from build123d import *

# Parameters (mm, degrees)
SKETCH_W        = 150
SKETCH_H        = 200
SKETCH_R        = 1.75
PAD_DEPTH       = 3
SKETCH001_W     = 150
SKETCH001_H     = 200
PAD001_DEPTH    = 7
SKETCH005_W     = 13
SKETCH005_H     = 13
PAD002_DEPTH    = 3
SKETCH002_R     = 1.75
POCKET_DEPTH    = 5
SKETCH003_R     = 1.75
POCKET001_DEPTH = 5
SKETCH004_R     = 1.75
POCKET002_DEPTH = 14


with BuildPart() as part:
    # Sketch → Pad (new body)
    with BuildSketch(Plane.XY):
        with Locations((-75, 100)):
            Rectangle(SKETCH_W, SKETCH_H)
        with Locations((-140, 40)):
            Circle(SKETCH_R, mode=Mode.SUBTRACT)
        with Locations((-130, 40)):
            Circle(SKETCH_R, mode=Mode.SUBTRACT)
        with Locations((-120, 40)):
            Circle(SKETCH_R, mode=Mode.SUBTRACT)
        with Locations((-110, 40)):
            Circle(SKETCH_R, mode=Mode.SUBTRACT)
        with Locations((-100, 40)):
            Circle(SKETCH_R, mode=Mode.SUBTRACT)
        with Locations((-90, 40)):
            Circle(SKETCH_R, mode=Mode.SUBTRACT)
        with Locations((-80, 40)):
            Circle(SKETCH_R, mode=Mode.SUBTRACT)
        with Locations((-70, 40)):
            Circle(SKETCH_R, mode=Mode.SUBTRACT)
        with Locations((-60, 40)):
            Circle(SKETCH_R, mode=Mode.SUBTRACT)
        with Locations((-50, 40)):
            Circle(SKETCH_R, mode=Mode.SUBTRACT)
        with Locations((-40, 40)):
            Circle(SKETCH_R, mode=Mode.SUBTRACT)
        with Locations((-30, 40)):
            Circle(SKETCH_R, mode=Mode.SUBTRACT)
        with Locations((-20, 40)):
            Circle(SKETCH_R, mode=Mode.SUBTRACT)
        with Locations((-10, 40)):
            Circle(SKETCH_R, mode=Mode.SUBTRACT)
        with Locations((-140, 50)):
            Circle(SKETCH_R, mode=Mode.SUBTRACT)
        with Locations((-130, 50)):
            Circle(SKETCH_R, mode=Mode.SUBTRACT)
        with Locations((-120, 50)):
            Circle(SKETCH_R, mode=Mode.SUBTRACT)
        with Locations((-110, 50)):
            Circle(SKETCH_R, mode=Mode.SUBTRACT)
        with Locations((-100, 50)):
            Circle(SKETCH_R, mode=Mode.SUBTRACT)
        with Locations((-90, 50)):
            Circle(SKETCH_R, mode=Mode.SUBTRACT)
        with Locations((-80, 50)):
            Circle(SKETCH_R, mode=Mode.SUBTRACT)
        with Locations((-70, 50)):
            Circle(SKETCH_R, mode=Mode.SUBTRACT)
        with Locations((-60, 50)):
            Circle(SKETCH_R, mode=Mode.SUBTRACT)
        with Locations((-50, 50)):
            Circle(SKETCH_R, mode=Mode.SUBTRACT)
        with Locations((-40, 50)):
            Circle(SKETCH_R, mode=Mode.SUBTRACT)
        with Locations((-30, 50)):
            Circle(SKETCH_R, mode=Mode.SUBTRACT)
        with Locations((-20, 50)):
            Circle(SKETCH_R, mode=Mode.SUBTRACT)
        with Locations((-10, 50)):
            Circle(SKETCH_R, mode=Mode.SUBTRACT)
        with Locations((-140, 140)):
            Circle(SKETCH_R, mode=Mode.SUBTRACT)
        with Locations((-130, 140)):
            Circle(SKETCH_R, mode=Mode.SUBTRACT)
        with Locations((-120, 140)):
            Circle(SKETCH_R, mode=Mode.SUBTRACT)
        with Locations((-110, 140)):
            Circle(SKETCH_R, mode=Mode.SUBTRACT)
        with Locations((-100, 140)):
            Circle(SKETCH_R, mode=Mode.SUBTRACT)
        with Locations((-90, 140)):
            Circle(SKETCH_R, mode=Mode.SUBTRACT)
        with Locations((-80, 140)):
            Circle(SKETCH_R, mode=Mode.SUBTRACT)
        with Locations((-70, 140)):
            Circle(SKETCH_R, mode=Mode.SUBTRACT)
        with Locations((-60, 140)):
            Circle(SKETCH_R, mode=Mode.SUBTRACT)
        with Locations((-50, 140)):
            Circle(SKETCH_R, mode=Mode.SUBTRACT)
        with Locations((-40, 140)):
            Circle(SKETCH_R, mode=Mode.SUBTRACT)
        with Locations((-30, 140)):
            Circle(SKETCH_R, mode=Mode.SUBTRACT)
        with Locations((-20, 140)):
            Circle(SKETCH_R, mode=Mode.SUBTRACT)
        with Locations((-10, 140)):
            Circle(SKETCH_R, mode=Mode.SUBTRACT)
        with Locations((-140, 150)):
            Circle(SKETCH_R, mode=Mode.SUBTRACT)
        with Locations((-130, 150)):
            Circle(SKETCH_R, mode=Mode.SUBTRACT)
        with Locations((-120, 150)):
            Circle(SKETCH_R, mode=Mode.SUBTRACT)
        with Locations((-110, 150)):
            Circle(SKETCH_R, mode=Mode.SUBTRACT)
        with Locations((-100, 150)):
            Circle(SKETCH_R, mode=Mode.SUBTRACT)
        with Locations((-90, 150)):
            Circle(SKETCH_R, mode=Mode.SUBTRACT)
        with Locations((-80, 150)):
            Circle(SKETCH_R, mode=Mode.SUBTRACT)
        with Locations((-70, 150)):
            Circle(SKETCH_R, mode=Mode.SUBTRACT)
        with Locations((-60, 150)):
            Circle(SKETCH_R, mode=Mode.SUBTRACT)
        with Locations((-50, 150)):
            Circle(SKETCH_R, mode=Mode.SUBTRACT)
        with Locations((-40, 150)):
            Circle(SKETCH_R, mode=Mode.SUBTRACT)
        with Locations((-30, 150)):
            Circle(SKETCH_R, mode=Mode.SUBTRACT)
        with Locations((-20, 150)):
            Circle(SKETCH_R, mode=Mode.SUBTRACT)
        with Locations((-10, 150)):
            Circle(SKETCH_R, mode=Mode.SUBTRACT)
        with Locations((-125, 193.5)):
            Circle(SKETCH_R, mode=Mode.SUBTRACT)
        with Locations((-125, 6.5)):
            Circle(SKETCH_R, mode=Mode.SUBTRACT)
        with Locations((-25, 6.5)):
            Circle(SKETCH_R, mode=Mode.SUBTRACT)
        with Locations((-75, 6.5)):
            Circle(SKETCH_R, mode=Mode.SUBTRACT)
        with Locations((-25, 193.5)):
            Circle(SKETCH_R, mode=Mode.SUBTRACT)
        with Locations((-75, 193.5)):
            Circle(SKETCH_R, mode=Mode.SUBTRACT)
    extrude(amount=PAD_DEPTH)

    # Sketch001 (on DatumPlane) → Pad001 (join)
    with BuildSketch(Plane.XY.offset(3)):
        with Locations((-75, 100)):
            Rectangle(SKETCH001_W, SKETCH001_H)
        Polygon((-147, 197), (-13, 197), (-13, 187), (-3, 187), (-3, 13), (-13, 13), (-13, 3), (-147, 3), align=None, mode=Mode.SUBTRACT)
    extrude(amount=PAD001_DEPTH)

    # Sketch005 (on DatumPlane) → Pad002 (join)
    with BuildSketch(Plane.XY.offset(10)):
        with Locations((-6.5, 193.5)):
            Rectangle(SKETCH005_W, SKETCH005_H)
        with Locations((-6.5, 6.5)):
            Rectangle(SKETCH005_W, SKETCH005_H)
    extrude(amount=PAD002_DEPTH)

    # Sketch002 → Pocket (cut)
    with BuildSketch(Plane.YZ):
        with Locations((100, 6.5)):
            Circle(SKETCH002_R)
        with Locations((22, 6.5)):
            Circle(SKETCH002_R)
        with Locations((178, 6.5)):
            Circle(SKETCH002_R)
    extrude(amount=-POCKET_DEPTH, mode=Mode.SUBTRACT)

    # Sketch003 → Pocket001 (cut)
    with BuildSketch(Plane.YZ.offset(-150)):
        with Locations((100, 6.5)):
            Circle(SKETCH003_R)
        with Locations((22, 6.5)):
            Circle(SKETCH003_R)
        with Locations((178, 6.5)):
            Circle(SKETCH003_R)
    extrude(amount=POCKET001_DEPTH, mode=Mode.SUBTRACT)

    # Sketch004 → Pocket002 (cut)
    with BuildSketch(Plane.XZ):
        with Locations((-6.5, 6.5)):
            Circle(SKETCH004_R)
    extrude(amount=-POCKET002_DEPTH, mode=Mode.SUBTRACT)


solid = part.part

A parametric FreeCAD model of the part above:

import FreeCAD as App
import Part
import Sketcher

doc = App.newDocument("Part")
body = doc.addObject("PartDesign::Body", "Body")

sketch1 = body.newObject("Sketcher::SketchObject", "Sketch")
sketch1.AttachmentSupport = (doc.getObject("XY_Plane"), [""])
sketch1.MapMode = "FlatFace"
sketch1.addGeometry(Part.LineSegment(App.Vector(-150, 200, 0), App.Vector(-150, 0, 0)), False)
sketch1.addGeometry(Part.LineSegment(App.Vector(-150, 0, 0), App.Vector(0, 0, 0)), False)
sketch1.addGeometry(Part.LineSegment(App.Vector(0, 0, 0), App.Vector(0, 200, 0)), False)
sketch1.addGeometry(Part.LineSegment(App.Vector(0, 200, 0), App.Vector(-150, 200, 0)), False)
sketch1.addGeometry(Part.Circle(App.Vector(-125, 6.5, 0), App.Vector(0, 0, 1), 1.8), False)
sketch1.addGeometry(Part.Circle(App.Vector(-140, 40, 0), App.Vector(0, 0, 1), 1.8), False)
sketch1.addGeometry(Part.Circle(App.Vector(-130, 40, 0), App.Vector(0, 0, 1), 1.8), False)
sketch1.addGeometry(Part.Circle(App.Vector(-140, 50, 0), App.Vector(0, 0, 1), 1.8), False)
sketch1.addGeometry(Part.Circle(App.Vector(-130, 50, 0), App.Vector(0, 0, 1), 1.8), False)
sketch1.addGeometry(Part.Circle(App.Vector(-120, 40, 0), App.Vector(0, 0, 1), 1.8), False)
sketch1.addGeometry(Part.Circle(App.Vector(-110, 40, 0), App.Vector(0, 0, 1), 1.8), False)
sketch1.addGeometry(Part.Circle(App.Vector(-120, 50, 0), App.Vector(0, 0, 1), 1.8), False)
sketch1.addGeometry(Part.Circle(App.Vector(-110, 50, 0), App.Vector(0, 0, 1), 1.8), False)
sketch1.addGeometry(Part.Circle(App.Vector(-100, 40, 0), App.Vector(0, 0, 1), 1.8), False)
sketch1.addGeometry(Part.Circle(App.Vector(-100, 50, 0), App.Vector(0, 0, 1), 1.8), False)
sketch1.addGeometry(Part.Circle(App.Vector(-90, 40, 0), App.Vector(0, 0, 1), 1.8), False)
sketch1.addGeometry(Part.Circle(App.Vector(-80, 40, 0), App.Vector(0, 0, 1), 1.8), False)
sketch1.addGeometry(Part.Circle(App.Vector(-90, 50, 0), App.Vector(0, 0, 1), 1.8), False)
sketch1.addGeometry(Part.Circle(App.Vector(-80, 50, 0), App.Vector(0, 0, 1), 1.8), False)
sketch1.addGeometry(Part.Circle(App.Vector(-75, 6.5, 0), App.Vector(0, 0, 1), 1.8), False)
sketch1.addGeometry(Part.Circle(App.Vector(-70, 40, 0), App.Vector(0, 0, 1), 1.8), False)
sketch1.addGeometry(Part.Circle(App.Vector(-60, 40, 0), App.Vector(0, 0, 1), 1.8), False)
sketch1.addGeometry(Part.Circle(App.Vector(-70, 50, 0), App.Vector(0, 0, 1), 1.8), False)
sketch1.addGeometry(Part.Circle(App.Vector(-60, 50, 0), App.Vector(0, 0, 1), 1.8), False)
sketch1.addGeometry(Part.Circle(App.Vector(-50, 40, 0), App.Vector(0, 0, 1), 1.8), False)
sketch1.addGeometry(Part.Circle(App.Vector(-50, 50, 0), App.Vector(0, 0, 1), 1.8), False)
sketch1.addGeometry(Part.Circle(App.Vector(-25, 6.5, 0), App.Vector(0, 0, 1), 1.8), False)
sketch1.addGeometry(Part.Circle(App.Vector(-40, 40, 0), App.Vector(0, 0, 1), 1.8), False)
sketch1.addGeometry(Part.Circle(App.Vector(-30, 40, 0), App.Vector(0, 0, 1), 1.8), False)
sketch1.addGeometry(Part.Circle(App.Vector(-40, 50, 0), App.Vector(0, 0, 1), 1.8), False)
sketch1.addGeometry(Part.Circle(App.Vector(-30, 50, 0), App.Vector(0, 0, 1), 1.8), False)
sketch1.addGeometry(Part.Circle(App.Vector(-20, 40, 0), App.Vector(0, 0, 1), 1.8), False)
sketch1.addGeometry(Part.Circle(App.Vector(-10, 40, 0), App.Vector(0, 0, 1), 1.8), False)
sketch1.addGeometry(Part.Circle(App.Vector(-20, 50, 0), App.Vector(0, 0, 1), 1.8), False)
sketch1.addGeometry(Part.Circle(App.Vector(-10, 50, 0), App.Vector(0, 0, 1), 1.8), False)
sketch1.addGeometry(Part.Circle(App.Vector(-140, 140, 0), App.Vector(0, 0, 1), 1.8), False)
sketch1.addGeometry(Part.Circle(App.Vector(-130, 140, 0), App.Vector(0, 0, 1), 1.8), False)
sketch1.addGeometry(Part.Circle(App.Vector(-120, 140, 0), App.Vector(0, 0, 1), 1.8), False)
sketch1.addGeometry(Part.Circle(App.Vector(-110, 140, 0), App.Vector(0, 0, 1), 1.8), False)
sketch1.addGeometry(Part.Circle(App.Vector(-100, 140, 0), App.Vector(0, 0, 1), 1.8), False)
sketch1.addGeometry(Part.Circle(App.Vector(-90, 140, 0), App.Vector(0, 0, 1), 1.8), False)
sketch1.addGeometry(Part.Circle(App.Vector(-80, 140, 0), App.Vector(0, 0, 1), 1.8), False)
sketch1.addGeometry(Part.Circle(App.Vector(-140, 150, 0), App.Vector(0, 0, 1), 1.8), False)
sketch1.addGeometry(Part.Circle(App.Vector(-130, 150, 0), App.Vector(0, 0, 1), 1.8), False)
sketch1.addGeometry(Part.Circle(App.Vector(-120, 150, 0), App.Vector(0, 0, 1), 1.8), False)
sketch1.addGeometry(Part.Circle(App.Vector(-110, 150, 0), App.Vector(0, 0, 1), 1.8), False)
sketch1.addGeometry(Part.Circle(App.Vector(-125, 193.5, 0), App.Vector(0, 0, 1), 1.8), False)
sketch1.addGeometry(Part.Circle(App.Vector(-100, 150, 0), App.Vector(0, 0, 1), 1.8), False)
sketch1.addGeometry(Part.Circle(App.Vector(-90, 150, 0), App.Vector(0, 0, 1), 1.8), False)
sketch1.addGeometry(Part.Circle(App.Vector(-80, 150, 0), App.Vector(0, 0, 1), 1.8), False)
sketch1.addGeometry(Part.Circle(App.Vector(-70, 140, 0), App.Vector(0, 0, 1), 1.8), False)
sketch1.addGeometry(Part.Circle(App.Vector(-60, 140, 0), App.Vector(0, 0, 1), 1.8), False)
sketch1.addGeometry(Part.Circle(App.Vector(-50, 140, 0), App.Vector(0, 0, 1), 1.8), False)
sketch1.addGeometry(Part.Circle(App.Vector(-40, 140, 0), App.Vector(0, 0, 1), 1.8), False)
sketch1.addGeometry(Part.Circle(App.Vector(-30, 140, 0), App.Vector(0, 0, 1), 1.8), False)
sketch1.addGeometry(Part.Circle(App.Vector(-20, 140, 0), App.Vector(0, 0, 1), 1.8), False)
sketch1.addGeometry(Part.Circle(App.Vector(-10, 140, 0), App.Vector(0, 0, 1), 1.8), False)
sketch1.addGeometry(Part.Circle(App.Vector(-70, 150, 0), App.Vector(0, 0, 1), 1.8), False)
sketch1.addGeometry(Part.Circle(App.Vector(-60, 150, 0), App.Vector(0, 0, 1), 1.8), False)
sketch1.addGeometry(Part.Circle(App.Vector(-50, 150, 0), App.Vector(0, 0, 1), 1.8), False)
sketch1.addGeometry(Part.Circle(App.Vector(-75, 193.5, 0), App.Vector(0, 0, 1), 1.8), False)
sketch1.addGeometry(Part.Circle(App.Vector(-40, 150, 0), App.Vector(0, 0, 1), 1.8), False)
sketch1.addGeometry(Part.Circle(App.Vector(-30, 150, 0), App.Vector(0, 0, 1), 1.8), False)
sketch1.addGeometry(Part.Circle(App.Vector(-20, 150, 0), App.Vector(0, 0, 1), 1.8), False)
sketch1.addGeometry(Part.Circle(App.Vector(-10, 150, 0), App.Vector(0, 0, 1), 1.8), False)
sketch1.addGeometry(Part.Circle(App.Vector(-25, 193.5, 0), App.Vector(0, 0, 1), 1.8), False)
sketch1.addConstraint(Sketcher.Constraint("Coincident", 0, 2, 1, 1))
sketch1.addConstraint(Sketcher.Constraint("Coincident", 1, 2, 2, 1))
sketch1.addConstraint(Sketcher.Constraint("Coincident", 2, 2, 3, 1))
sketch1.addConstraint(Sketcher.Constraint("Coincident", 3, 2, 0, 1))
sketch1.addConstraint(Sketcher.Constraint("Vertical", 0))
sketch1.addConstraint(Sketcher.Constraint("Horizontal", 1))
sketch1.addConstraint(Sketcher.Constraint("Vertical", 2))
sketch1.addConstraint(Sketcher.Constraint("Horizontal", 3))
sketch1.addConstraint(Sketcher.Constraint("Coincident", 1, 2, -1, 1))
sketch1.addConstraint(Sketcher.Constraint("Equal", 4, 5))
sketch1.addConstraint(Sketcher.Constraint("Equal", 5, 6))
sketch1.addConstraint(Sketcher.Constraint("Equal", 6, 7))
sketch1.addConstraint(Sketcher.Constraint("Equal", 7, 8))
sketch1.addConstraint(Sketcher.Constraint("Equal", 8, 9))
sketch1.addConstraint(Sketcher.Constraint("Equal", 9, 10))
sketch1.addConstraint(Sketcher.Constraint("Equal", 10, 11))
sketch1.addConstraint(Sketcher.Constraint("Equal", 11, 12))
sketch1.addConstraint(Sketcher.Constraint("Equal", 12, 13))
sketch1.addConstraint(Sketcher.Constraint("Equal", 13, 14))
sketch1.addConstraint(Sketcher.Constraint("Equal", 14, 15))
sketch1.addConstraint(Sketcher.Constraint("Equal", 15, 16))
sketch1.addConstraint(Sketcher.Constraint("Equal", 16, 17))
sketch1.addConstraint(Sketcher.Constraint("Equal", 17, 18))
sketch1.addConstraint(Sketcher.Constraint("Equal", 18, 19))
sketch1.addConstraint(Sketcher.Constraint("Equal", 19, 20))
sketch1.addConstraint(Sketcher.Constraint("Equal", 20, 21))
sketch1.addConstraint(Sketcher.Constraint("Equal", 21, 22))
sketch1.addConstraint(Sketcher.Constraint("Equal", 22, 23))
sketch1.addConstraint(Sketcher.Constraint("Equal", 23, 24))
sketch1.addConstraint(Sketcher.Constraint("Equal", 24, 25))
sketch1.addConstraint(Sketcher.Constraint("Equal", 25, 26))
sketch1.addConstraint(Sketcher.Constraint("Equal", 26, 27))
sketch1.addConstraint(Sketcher.Constraint("Equal", 27, 28))
sketch1.addConstraint(Sketcher.Constraint("Equal", 28, 29))
sketch1.addConstraint(Sketcher.Constraint("Equal", 29, 30))
sketch1.addConstraint(Sketcher.Constraint("Equal", 30, 31))
sketch1.addConstraint(Sketcher.Constraint("Equal", 31, 32))
sketch1.addConstraint(Sketcher.Constraint("Equal", 32, 33))
sketch1.addConstraint(Sketcher.Constraint("Equal", 33, 34))
sketch1.addConstraint(Sketcher.Constraint("Equal", 34, 35))
sketch1.addConstraint(Sketcher.Constraint("Equal", 35, 36))
sketch1.addConstraint(Sketcher.Constraint("Equal", 36, 37))
sketch1.addConstraint(Sketcher.Constraint("Equal", 37, 38))
sketch1.addConstraint(Sketcher.Constraint("Equal", 38, 39))
sketch1.addConstraint(Sketcher.Constraint("Equal", 39, 40))
sketch1.addConstraint(Sketcher.Constraint("Equal", 40, 41))
sketch1.addConstraint(Sketcher.Constraint("Equal", 41, 42))
sketch1.addConstraint(Sketcher.Constraint("Equal", 42, 43))
sketch1.addConstraint(Sketcher.Constraint("Equal", 43, 44))
sketch1.addConstraint(Sketcher.Constraint("Equal", 44, 45))
sketch1.addConstraint(Sketcher.Constraint("Equal", 45, 46))
sketch1.addConstraint(Sketcher.Constraint("Equal", 46, 47))
sketch1.addConstraint(Sketcher.Constraint("Equal", 47, 48))
sketch1.addConstraint(Sketcher.Constraint("Equal", 48, 49))
sketch1.addConstraint(Sketcher.Constraint("Equal", 49, 50))
sketch1.addConstraint(Sketcher.Constraint("Equal", 50, 51))
sketch1.addConstraint(Sketcher.Constraint("Equal", 51, 52))
sketch1.addConstraint(Sketcher.Constraint("Equal", 52, 53))
sketch1.addConstraint(Sketcher.Constraint("Equal", 53, 54))
sketch1.addConstraint(Sketcher.Constraint("Equal", 54, 55))
sketch1.addConstraint(Sketcher.Constraint("Equal", 55, 56))
sketch1.addConstraint(Sketcher.Constraint("Equal", 56, 57))
sketch1.addConstraint(Sketcher.Constraint("Equal", 57, 58))
sketch1.addConstraint(Sketcher.Constraint("Equal", 58, 59))
sketch1.addConstraint(Sketcher.Constraint("Equal", 59, 60))
sketch1.addConstraint(Sketcher.Constraint("Equal", 60, 61))
sketch1.addConstraint(Sketcher.Constraint("Equal", 61, 62))
sketch1.addConstraint(Sketcher.Constraint("Equal", 62, 63))
sketch1.addConstraint(Sketcher.Constraint("Equal", 63, 64))
sketch1.addConstraint(Sketcher.Constraint("Equal", 64, 65))
sketch1.addConstraint(Sketcher.Constraint("Horizontal", 5, 3, 6, 3))
sketch1.addConstraint(Sketcher.Constraint("Horizontal", 7, 3, 8, 3))
sketch1.addConstraint(Sketcher.Constraint("Horizontal", 6, 3, 9, 3))
sketch1.addConstraint(Sketcher.Constraint("Horizontal", 9, 3, 10, 3))
sketch1.addConstraint(Sketcher.Constraint("Horizontal", 8, 3, 11, 3))
sketch1.addConstraint(Sketcher.Constraint("Horizontal", 11, 3, 12, 3))
sketch1.addConstraint(Sketcher.Constraint("Horizontal", 10, 3, 13, 3))
sketch1.addConstraint(Sketcher.Constraint("Horizontal", 12, 3, 14, 3))
sketch1.addConstraint(Sketcher.Constraint("Horizontal", 13, 3, 15, 3))
sketch1.addConstraint(Sketcher.Constraint("Horizontal", 15, 3, 16, 3))
sketch1.addConstraint(Sketcher.Constraint("Horizontal", 14, 3, 17, 3))
sketch1.addConstraint(Sketcher.Constraint("Horizontal", 17, 3, 18, 3))
sketch1.addConstraint(Sketcher.Constraint("Horizontal", 4, 3, 19, 3))
sketch1.addConstraint(Sketcher.Constraint("Horizontal", 16, 3, 20, 3))
sketch1.addConstraint(Sketcher.Constraint("Horizontal", 20, 3, 21, 3))
sketch1.addConstraint(Sketcher.Constraint("Horizontal", 18, 3, 22, 3))
sketch1.addConstraint(Sketcher.Constraint("Horizontal", 22, 3, 23, 3))
sketch1.addConstraint(Sketcher.Constraint("Horizontal", 21, 3, 24, 3))
sketch1.addConstraint(Sketcher.Constraint("Horizontal", 23, 3, 25, 3))
sketch1.addConstraint(Sketcher.Constraint("Horizontal", 19, 3, 26, 3))
sketch1.addConstraint(Sketcher.Constraint("Horizontal", 24, 3, 27, 3))
sketch1.addConstraint(Sketcher.Constraint("Horizontal", 27, 3, 28, 3))
sketch1.addConstraint(Sketcher.Constraint("Horizontal", 25, 3, 29, 3))
sketch1.addConstraint(Sketcher.Constraint("Horizontal", 29, 3, 30, 3))
sketch1.addConstraint(Sketcher.Constraint("Horizontal", 28, 3, 31, 3))
sketch1.addConstraint(Sketcher.Constraint("Horizontal", 31, 3, 32, 3))
sketch1.addConstraint(Sketcher.Constraint("Horizontal", 30, 3, 33, 3))
sketch1.addConstraint(Sketcher.Constraint("Horizontal", 33, 3, 34, 3))
sketch1.addConstraint(Sketcher.Constraint("Horizontal", 35, 3, 36, 3))
sketch1.addConstraint(Sketcher.Constraint("Horizontal", 36, 3, 37, 3))
sketch1.addConstraint(Sketcher.Constraint("Horizontal", 37, 3, 38, 3))
sketch1.addConstraint(Sketcher.Constraint("Horizontal", 38, 3, 39, 3))
sketch1.addConstraint(Sketcher.Constraint("Horizontal", 39, 3, 40, 3))
sketch1.addConstraint(Sketcher.Constraint("Horizontal", 40, 3, 41, 3))
sketch1.addConstraint(Sketcher.Constraint("Horizontal", 42, 3, 43, 3))
sketch1.addConstraint(Sketcher.Constraint("Horizontal", 43, 3, 44, 3))
sketch1.addConstraint(Sketcher.Constraint("Horizontal", 44, 3, 45, 3))
sketch1.addConstraint(Sketcher.Constraint("Horizontal", 45, 3, 47, 3))
sketch1.addConstraint(Sketcher.Constraint("Horizontal", 47, 3, 48, 3))
sketch1.addConstraint(Sketcher.Constraint("Horizontal", 48, 3, 49, 3))
sketch1.addConstraint(Sketcher.Constraint("Horizontal", 41, 3, 50, 3))
sketch1.addConstraint(Sketcher.Constraint("Horizontal", 50, 3, 51, 3))
sketch1.addConstraint(Sketcher.Constraint("Horizontal", 51, 3, 52, 3))
sketch1.addConstraint(Sketcher.Constraint("Horizontal", 52, 3, 53, 3))
sketch1.addConstraint(Sketcher.Constraint("Horizontal", 53, 3, 54, 3))
sketch1.addConstraint(Sketcher.Constraint("Horizontal", 54, 3, 55, 3))
sketch1.addConstraint(Sketcher.Constraint("Horizontal", 55, 3, 56, 3))
sketch1.addConstraint(Sketcher.Constraint("Horizontal", 49, 3, 57, 3))
sketch1.addConstraint(Sketcher.Constraint("Horizontal", 57, 3, 58, 3))
sketch1.addConstraint(Sketcher.Constraint("Horizontal", 58, 3, 59, 3))
sketch1.addConstraint(Sketcher.Constraint("Horizontal", 46, 3, 60, 3))
sketch1.addConstraint(Sketcher.Constraint("Horizontal", 59, 3, 61, 3))
sketch1.addConstraint(Sketcher.Constraint("Horizontal", 61, 3, 62, 3))
sketch1.addConstraint(Sketcher.Constraint("Horizontal", 62, 3, 63, 3))
sketch1.addConstraint(Sketcher.Constraint("Horizontal", 63, 3, 64, 3))
sketch1.addConstraint(Sketcher.Constraint("Horizontal", 60, 3, 65, 3))
sketch1.addConstraint(Sketcher.Constraint("Vertical", 5, 3, 7, 3))
sketch1.addConstraint(Sketcher.Constraint("Vertical", 6, 3, 8, 3))
sketch1.addConstraint(Sketcher.Constraint("Vertical", 9, 3, 11, 3))
sketch1.addConstraint(Sketcher.Constraint("Vertical", 10, 3, 12, 3))
sketch1.addConstraint(Sketcher.Constraint("Vertical", 13, 3, 14, 3))
sketch1.addConstraint(Sketcher.Constraint("Vertical", 15, 3, 17, 3))
sketch1.addConstraint(Sketcher.Constraint("Vertical", 16, 3, 18, 3))
sketch1.addConstraint(Sketcher.Constraint("Vertical", 20, 3, 22, 3))
sketch1.addConstraint(Sketcher.Constraint("Vertical", 21, 3, 23, 3))
sketch1.addConstraint(Sketcher.Constraint("Vertical", 24, 3, 25, 3))
sketch1.addConstraint(Sketcher.Constraint("Vertical", 27, 3, 29, 3))
sketch1.addConstraint(Sketcher.Constraint("Vertical", 28, 3, 30, 3))
sketch1.addConstraint(Sketcher.Constraint("Vertical", 31, 3, 33, 3))
sketch1.addConstraint(Sketcher.Constraint("Vertical", 32, 3, 34, 3))
sketch1.addConstraint(Sketcher.Constraint("Vertical", 7, 3, 35, 3))
sketch1.addConstraint(Sketcher.Constraint("Vertical", 8, 3, 36, 3))
sketch1.addConstraint(Sketcher.Constraint("Vertical", 11, 3, 37, 3))
sketch1.addConstraint(Sketcher.Constraint("Vertical", 12, 3, 38, 3))
sketch1.addConstraint(Sketcher.Constraint("Vertical", 14, 3, 39, 3))
sketch1.addConstraint(Sketcher.Constraint("Vertical", 17, 3, 40, 3))
sketch1.addConstraint(Sketcher.Constraint("Vertical", 18, 3, 41, 3))
sketch1.addConstraint(Sketcher.Constraint("Vertical", 35, 3, 42, 3))
sketch1.addConstraint(Sketcher.Constraint("Vertical", 36, 3, 43, 3))
sketch1.addConstraint(Sketcher.Constraint("Vertical", 37, 3, 44, 3))
sketch1.addConstraint(Sketcher.Constraint("Vertical", 38, 3, 45, 3))
sketch1.addConstraint(Sketcher.Constraint("Vertical", 4, 3, 46, 3))
sketch1.addConstraint(Sketcher.Constraint("Vertical", 39, 3, 47, 3))
sketch1.addConstraint(Sketcher.Constraint("Vertical", 40, 3, 48, 3))
sketch1.addConstraint(Sketcher.Constraint("Vertical", 41, 3, 49, 3))
sketch1.addConstraint(Sketcher.Constraint("Vertical", 22, 3, 50, 3))
sketch1.addConstraint(Sketcher.Constraint("Vertical", 23, 3, 51, 3))
sketch1.addConstraint(Sketcher.Constraint("Vertical", 25, 3, 52, 3))
sketch1.addConstraint(Sketcher.Constraint("Vertical", 29, 3, 53, 3))
sketch1.addConstraint(Sketcher.Constraint("Vertical", 30, 3, 54, 3))
sketch1.addConstraint(Sketcher.Constraint("Vertical", 33, 3, 55, 3))
sketch1.addConstraint(Sketcher.Constraint("Vertical", 34, 3, 56, 3))
sketch1.addConstraint(Sketcher.Constraint("Vertical", 50, 3, 57, 3))
sketch1.addConstraint(Sketcher.Constraint("Vertical", 51, 3, 58, 3))
sketch1.addConstraint(Sketcher.Constraint("Vertical", 52, 3, 59, 3))
sketch1.addConstraint(Sketcher.Constraint("Vertical", 19, 3, 60, 3))
sketch1.addConstraint(Sketcher.Constraint("Vertical", 53, 3, 61, 3))
sketch1.addConstraint(Sketcher.Constraint("Vertical", 54, 3, 62, 3))
sketch1.addConstraint(Sketcher.Constraint("Vertical", 55, 3, 63, 3))
sketch1.addConstraint(Sketcher.Constraint("Vertical", 56, 3, 64, 3))
sketch1.addConstraint(Sketcher.Constraint("Vertical", 26, 3, 65, 3))
sketch1.addConstraint(Sketcher.Constraint("Diameter", 4, 3.5))
sketch1.addConstraint(Sketcher.Constraint("DistanceX", 1, 1, 1, 2, 150.0))
sketch1.addConstraint(Sketcher.Constraint("DistanceY", 0, 2, 0, 1, 200.0))
sketch1.addConstraint(Sketcher.Constraint("DistanceX", 4, 3, -1, 1, 125.0))
sketch1.addConstraint(Sketcher.Constraint("DistanceX", 5, 3, -1, 1, 140.0))
sketch1.addConstraint(Sketcher.Constraint("DistanceY", -1, 1, 5, 3, 40.0))
sketch1.addConstraint(Sketcher.Constraint("DistanceX", 6, 3, -1, 1, 130.0))
sketch1.addConstraint(Sketcher.Constraint("DistanceY", -1, 1, 7, 3, 50.0))
sketch1.addConstraint(Sketcher.Constraint("DistanceX", 9, 3, -1, 1, 120.0))
sketch1.addConstraint(Sketcher.Constraint("DistanceX", 10, 3, -1, 1, 110.0))
sketch1.addConstraint(Sketcher.Constraint("DistanceX", 13, 3, -1, 1, 100.0))
sketch1.addConstraint(Sketcher.Constraint("DistanceX", 15, 3, -1, 1, 90.0))
sketch1.addConstraint(Sketcher.Constraint("DistanceX", 16, 3, -1, 1, 80.0))
sketch1.addConstraint(Sketcher.Constraint("DistanceX", 19, 3, -1, 1, 75.0))
sketch1.addConstraint(Sketcher.Constraint("DistanceX", 20, 3, -1, 1, 70.0))
sketch1.addConstraint(Sketcher.Constraint("DistanceX", 21, 3, -1, 1, 60.0))
sketch1.addConstraint(Sketcher.Constraint("DistanceX", 24, 3, -1, 1, 50.0))
sketch1.addConstraint(Sketcher.Constraint("DistanceX", 26, 3, -1, 1, 25.0))
sketch1.addConstraint(Sketcher.Constraint("DistanceX", 27, 3, -1, 1, 40.0))
sketch1.addConstraint(Sketcher.Constraint("DistanceX", 28, 3, -1, 1, 30.0))
sketch1.addConstraint(Sketcher.Constraint("DistanceX", 31, 3, -1, 1, 20.0))
sketch1.addConstraint(Sketcher.Constraint("DistanceX", 32, 3, -1, 1, 10.0))
sketch1.addConstraint(Sketcher.Constraint("DistanceY", -1, 1, 35, 3, 140.0))
sketch1.addConstraint(Sketcher.Constraint("DistanceY", -1, 1, 42, 3, 150.0))
sketch1.addConstraint(Sketcher.Constraint("DistanceY", -1, 1, 4, 3, 6.5))
sketch1.addConstraint(Sketcher.Constraint("DistanceY", -1, 1, 46, 3, 193.5))
pad1 = body.newObject("PartDesign::Pad", "Pad")
pad1.Profile = sketch1
pad1.Length = 3

sketch2 = body.newObject("Sketcher::SketchObject", "Sketch001")
sketch2.AttachmentSupport = (doc.getObject("XY_Plane"), [""])
sketch2.MapMode = "FlatFace"
sketch2.AttachmentOffset = App.Placement(App.Vector(0, 0, 3), App.Rotation())
sketch2.addGeometry(Part.LineSegment(App.Vector(-150, 200, 0), App.Vector(-150, 0, 0)), False)
sketch2.addGeometry(Part.LineSegment(App.Vector(-150, 0, 0), App.Vector(0, 0, 0)), False)
sketch2.addGeometry(Part.LineSegment(App.Vector(0, 0, 0), App.Vector(0, 200, 0)), False)
sketch2.addGeometry(Part.LineSegment(App.Vector(0, 200, 0), App.Vector(-150, 200, 0)), False)
sketch2.addGeometry(Part.LineSegment(App.Vector(-147, 3, 0), App.Vector(-147, 197, 0)), False)
sketch2.addGeometry(Part.LineSegment(App.Vector(-147, 197, 0), App.Vector(-13, 197, 0)), False)
sketch2.addGeometry(Part.LineSegment(App.Vector(-13, 197, 0), App.Vector(-13, 187, 0)), False)
sketch2.addGeometry(Part.LineSegment(App.Vector(-13, 187, 0), App.Vector(-3, 187, 0)), False)
sketch2.addGeometry(Part.LineSegment(App.Vector(-3, 187, 0), App.Vector(-3, 13, 0)), False)
sketch2.addGeometry(Part.LineSegment(App.Vector(-3, 13, 0), App.Vector(-13, 13, 0)), False)
sketch2.addGeometry(Part.LineSegment(App.Vector(-13, 13, 0), App.Vector(-13, 3, 0)), False)
sketch2.addGeometry(Part.LineSegment(App.Vector(-13, 3, 0), App.Vector(-147, 3, 0)), False)
sketch2.addConstraint(Sketcher.Constraint("Coincident", 0, 2, 1, 1))
sketch2.addConstraint(Sketcher.Constraint("Coincident", 1, 2, 2, 1))
sketch2.addConstraint(Sketcher.Constraint("Coincident", 2, 2, 3, 1))
sketch2.addConstraint(Sketcher.Constraint("Coincident", 3, 2, 0, 1))
sketch2.addConstraint(Sketcher.Constraint("Coincident", 4, 2, 5, 1))
sketch2.addConstraint(Sketcher.Constraint("Coincident", 5, 2, 6, 1))
sketch2.addConstraint(Sketcher.Constraint("Coincident", 6, 2, 7, 1))
sketch2.addConstraint(Sketcher.Constraint("Coincident", 7, 2, 8, 1))
sketch2.addConstraint(Sketcher.Constraint("Coincident", 8, 2, 9, 1))
sketch2.addConstraint(Sketcher.Constraint("Coincident", 9, 2, 10, 1))
sketch2.addConstraint(Sketcher.Constraint("Coincident", 10, 2, 11, 1))
sketch2.addConstraint(Sketcher.Constraint("Coincident", 11, 2, 4, 1))
sketch2.addConstraint(Sketcher.Constraint("Vertical", 0))
sketch2.addConstraint(Sketcher.Constraint("Horizontal", 1))
sketch2.addConstraint(Sketcher.Constraint("Vertical", 2))
sketch2.addConstraint(Sketcher.Constraint("Horizontal", 3))
sketch2.addConstraint(Sketcher.Constraint("Vertical", 4))
sketch2.addConstraint(Sketcher.Constraint("Horizontal", 5))
sketch2.addConstraint(Sketcher.Constraint("Vertical", 6))
sketch2.addConstraint(Sketcher.Constraint("Horizontal", 7))
sketch2.addConstraint(Sketcher.Constraint("Vertical", 8))
sketch2.addConstraint(Sketcher.Constraint("Horizontal", 9))
sketch2.addConstraint(Sketcher.Constraint("Vertical", 10))
sketch2.addConstraint(Sketcher.Constraint("Horizontal", 11))
sketch2.addConstraint(Sketcher.Constraint("Coincident", 1, 2, -1, 1))
sketch2.addConstraint(Sketcher.Constraint("Vertical", 6, 2, 9, 2))
sketch2.addConstraint(Sketcher.Constraint("Equal", 9, 6))
sketch2.addConstraint(Sketcher.Constraint("Equal", 6, 10))
sketch2.addConstraint(Sketcher.Constraint("DistanceX", 1, 1, 1, 2, 150.0))
sketch2.addConstraint(Sketcher.Constraint("DistanceX", 5, 1, 5, 2, 134.0))
sketch2.addConstraint(Sketcher.Constraint("DistanceX", 7, 1, 7, 2, 10.0))
sketch2.addConstraint(Sketcher.Constraint("DistanceY", 0, 2, 0, 1, 200.0))
sketch2.addConstraint(Sketcher.Constraint("DistanceY", 4, 1, 4, 2, 194.0))
sketch2.addConstraint(Sketcher.Constraint("DistanceX", 4, 2, -1, 1, 147.0))
sketch2.addConstraint(Sketcher.Constraint("DistanceY", -1, 1, 4, 2, 197.0))
pad2 = body.newObject("PartDesign::Pad", "Pad001")
pad2.Profile = sketch2
pad2.Length = 7

sketch3 = body.newObject("Sketcher::SketchObject", "Sketch002")
sketch3.AttachmentSupport = (doc.getObject("XY_Plane"), [""])
sketch3.MapMode = "FlatFace"
sketch3.AttachmentOffset = App.Placement(App.Vector(0, 0, 10), App.Rotation())
sketch3.addGeometry(Part.LineSegment(App.Vector(-13, 200, 0), App.Vector(-13, 187, 0)), False)
sketch3.addGeometry(Part.LineSegment(App.Vector(-13, 187, 0), App.Vector(0, 187, 0)), False)
sketch3.addGeometry(Part.LineSegment(App.Vector(0, 187, 0), App.Vector(0, 200, 0)), False)
sketch3.addGeometry(Part.LineSegment(App.Vector(0, 200, 0), App.Vector(-13, 200, 0)), False)
sketch3.addGeometry(Part.LineSegment(App.Vector(-13, 13, 0), App.Vector(-13, 0, 0)), False)
sketch3.addGeometry(Part.LineSegment(App.Vector(-13, 0, 0), App.Vector(0, 0, 0)), False)
sketch3.addGeometry(Part.LineSegment(App.Vector(0, 0, 0), App.Vector(0, 13, 0)), False)
sketch3.addGeometry(Part.LineSegment(App.Vector(0, 13, 0), App.Vector(-13, 13, 0)), False)
sketch3.addConstraint(Sketcher.Constraint("Coincident", 0, 2, 1, 1))
sketch3.addConstraint(Sketcher.Constraint("Coincident", 1, 2, 2, 1))
sketch3.addConstraint(Sketcher.Constraint("Coincident", 2, 2, 3, 1))
sketch3.addConstraint(Sketcher.Constraint("Coincident", 3, 2, 0, 1))
sketch3.addConstraint(Sketcher.Constraint("Coincident", 4, 2, 5, 1))
sketch3.addConstraint(Sketcher.Constraint("Coincident", 5, 2, 6, 1))
sketch3.addConstraint(Sketcher.Constraint("Coincident", 6, 2, 7, 1))
sketch3.addConstraint(Sketcher.Constraint("Coincident", 7, 2, 4, 1))
sketch3.addConstraint(Sketcher.Constraint("Vertical", 0))
sketch3.addConstraint(Sketcher.Constraint("Horizontal", 1))
sketch3.addConstraint(Sketcher.Constraint("Vertical", 2))
sketch3.addConstraint(Sketcher.Constraint("Horizontal", 3))
sketch3.addConstraint(Sketcher.Constraint("Vertical", 4))
sketch3.addConstraint(Sketcher.Constraint("Horizontal", 5))
sketch3.addConstraint(Sketcher.Constraint("Vertical", 6))
sketch3.addConstraint(Sketcher.Constraint("Horizontal", 7))
sketch3.addConstraint(Sketcher.Constraint("Coincident", 5, 2, -1, 1))
sketch3.addConstraint(Sketcher.Constraint("PointOnObject", 1, 2, -2))
sketch3.addConstraint(Sketcher.Constraint("Vertical", 3, 2, 4, 2))
sketch3.addConstraint(Sketcher.Constraint("Equal", 7, 0))
sketch3.addConstraint(Sketcher.Constraint("Equal", 2, 4))
sketch3.addConstraint(Sketcher.Constraint("DistanceX", 1, 1, 1, 2, 13.0))
sketch3.addConstraint(Sketcher.Constraint("DistanceY", -1, 1, 0, 2, 187.0))
pad3 = body.newObject("PartDesign::Pad", "Pad002")
pad3.Profile = sketch3
pad3.Length = 3

sketch4 = body.newObject("Sketcher::SketchObject", "Sketch003")
sketch4.AttachmentSupport = (doc.getObject("YZ_Plane"), [""])
sketch4.MapMode = "FlatFace"
sketch4.addGeometry(Part.Circle(App.Vector(100, 6.5, 0), App.Vector(0, 0, 1), 1.8), False)
sketch4.addGeometry(Part.Circle(App.Vector(22, 6.5, 0), App.Vector(0, 0, 1), 1.8), False)
sketch4.addGeometry(Part.Circle(App.Vector(178, 6.5, 0), App.Vector(0, 0, 1), 1.8), False)
sketch4.addConstraint(Sketcher.Constraint("Equal", 0, 1))
sketch4.addConstraint(Sketcher.Constraint("Equal", 1, 2))
sketch4.addConstraint(Sketcher.Constraint("Horizontal", 0, 3, 1, 3))
sketch4.addConstraint(Sketcher.Constraint("Horizontal", 1, 3, 2, 3))
sketch4.addConstraint(Sketcher.Constraint("Diameter", 0, 3.5))
sketch4.addConstraint(Sketcher.Constraint("DistanceX", -1, 1, 0, 3, 100.0))
sketch4.addConstraint(Sketcher.Constraint("DistanceX", -1, 1, 1, 3, 22.0))
sketch4.addConstraint(Sketcher.Constraint("DistanceX", -1, 1, 2, 3, 178.0))
sketch4.addConstraint(Sketcher.Constraint("DistanceY", -1, 1, 0, 3, 6.5))
pocket1 = body.newObject("PartDesign::Pocket", "Pocket")
pocket1.Profile = sketch4
pocket1.Length = 5

sketch5 = body.newObject("Sketcher::SketchObject", "Sketch004")
sketch5.AttachmentSupport = (doc.getObject("YZ_Plane"), [""])
sketch5.MapMode = "FlatFace"
sketch5.AttachmentOffset = App.Placement(App.Vector(0, 0, -150), App.Rotation())
sketch5.addGeometry(Part.Circle(App.Vector(100, 6.5, 0), App.Vector(0, 0, 1), 1.8), False)
sketch5.addGeometry(Part.Circle(App.Vector(22, 6.5, 0), App.Vector(0, 0, 1), 1.8), False)
sketch5.addGeometry(Part.Circle(App.Vector(178, 6.5, 0), App.Vector(0, 0, 1), 1.8), False)
sketch5.addConstraint(Sketcher.Constraint("Equal", 0, 1))
sketch5.addConstraint(Sketcher.Constraint("Equal", 1, 2))
sketch5.addConstraint(Sketcher.Constraint("Horizontal", 0, 3, 1, 3))
sketch5.addConstraint(Sketcher.Constraint("Horizontal", 1, 3, 2, 3))
sketch5.addConstraint(Sketcher.Constraint("Diameter", 0, 3.5))
sketch5.addConstraint(Sketcher.Constraint("DistanceX", -1, 1, 0, 3, 100.0))
sketch5.addConstraint(Sketcher.Constraint("DistanceX", -1, 1, 1, 3, 22.0))
sketch5.addConstraint(Sketcher.Constraint("DistanceX", -1, 1, 2, 3, 178.0))
sketch5.addConstraint(Sketcher.Constraint("DistanceY", -1, 1, 0, 3, 6.5))
pocket2 = body.newObject("PartDesign::Pocket", "Pocket001")
pocket2.Profile = sketch5
pocket2.Length = 5
pocket2.Reversed = True

sketch6 = body.newObject("Sketcher::SketchObject", "Sketch005")
sketch6.AttachmentSupport = (doc.getObject("XZ_Plane"), [""])
sketch6.MapMode = "FlatFace"
sketch6.addGeometry(Part.Circle(App.Vector(-6.5, 6.5, 0), App.Vector(0, 0, 1), 1.8), False)
sketch6.addConstraint(Sketcher.Constraint("Diameter", 0, 3.5))
sketch6.addConstraint(Sketcher.Constraint("DistanceX", 0, 3, -1, 1, 6.5))
sketch6.addConstraint(Sketcher.Constraint("DistanceY", -1, 1, 0, 3, 6.5))
pocket3 = body.newObject("PartDesign::Pocket", "Pocket002")
pocket3.Profile = sketch6
pocket3.Length = 14

doc.recompute()
